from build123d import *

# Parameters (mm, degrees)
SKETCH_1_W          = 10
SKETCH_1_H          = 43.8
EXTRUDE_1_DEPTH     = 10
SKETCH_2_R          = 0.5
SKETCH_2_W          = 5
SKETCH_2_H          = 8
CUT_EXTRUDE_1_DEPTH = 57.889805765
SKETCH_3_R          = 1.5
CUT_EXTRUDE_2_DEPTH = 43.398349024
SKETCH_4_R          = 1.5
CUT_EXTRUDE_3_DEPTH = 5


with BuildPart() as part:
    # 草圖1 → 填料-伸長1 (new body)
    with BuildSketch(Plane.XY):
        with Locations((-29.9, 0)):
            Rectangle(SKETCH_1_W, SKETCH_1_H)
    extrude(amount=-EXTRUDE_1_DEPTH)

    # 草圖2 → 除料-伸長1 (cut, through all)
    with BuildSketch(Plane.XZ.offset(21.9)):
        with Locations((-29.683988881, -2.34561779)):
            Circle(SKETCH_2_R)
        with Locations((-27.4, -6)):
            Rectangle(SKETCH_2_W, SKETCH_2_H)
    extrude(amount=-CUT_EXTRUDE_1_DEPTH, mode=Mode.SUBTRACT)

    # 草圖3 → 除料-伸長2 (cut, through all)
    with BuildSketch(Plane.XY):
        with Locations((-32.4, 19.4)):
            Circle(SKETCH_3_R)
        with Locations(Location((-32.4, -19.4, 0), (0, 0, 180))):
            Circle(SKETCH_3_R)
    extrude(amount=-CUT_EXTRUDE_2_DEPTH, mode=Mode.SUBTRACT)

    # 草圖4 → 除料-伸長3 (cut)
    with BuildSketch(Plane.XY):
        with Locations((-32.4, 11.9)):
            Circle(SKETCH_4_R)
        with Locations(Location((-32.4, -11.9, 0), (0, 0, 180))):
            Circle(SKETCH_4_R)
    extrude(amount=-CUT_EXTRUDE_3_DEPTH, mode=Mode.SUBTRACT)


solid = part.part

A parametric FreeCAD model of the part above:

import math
import FreeCAD as App
import Part
import Sketcher

V = App.Vector

doc = App.newDocument("Part")
body = doc.addObject("PartDesign::Body", "Body")

# Sketch on XY plane
sketch1 = body.newObject("Sketcher::SketchObject", "Sketch")
sketch1.AttachmentSupport = (doc.getObject("XY_Plane"), [""])
sketch1.MapMode = "FlatFace"
sketch1.addGeometry(Part.LineSegment(V(-34.9, 21.9, 0), V(-34.9, -21.9, 0)), False)
sketch1.addGeometry(Part.LineSegment(V(-34.9, -21.9, 0), V(-24.9, -21.9, 0)), False)
sketch1.addGeometry(Part.LineSegment(V(-24.9, -21.9, 0), V(-24.9, 21.9, 0)), False)
sketch1.addGeometry(Part.LineSegment(V(-24.9, 21.9, 0), V(-34.9, 21.9, 0)), False)
sketch1.addConstraint(Sketcher.Constraint("Coincident", 0, 2, 1, 1))
sketch1.addConstraint(Sketcher.Constraint("Coincident", 1, 2, 2, 1))
sketch1.addConstraint(Sketcher.Constraint("Coincident", 2, 2, 3, 1))
sketch1.addConstraint(Sketcher.Constraint("Coincident", 3, 2, 0, 1))
sketch1.addConstraint(Sketcher.Constraint("Vertical", 0))
sketch1.addConstraint(Sketcher.Constraint("Horizontal", 1))
sketch1.addConstraint(Sketcher.Constraint("Vertical", 2))
sketch1.addConstraint(Sketcher.Constraint("Horizontal", 3))
sketch1.addConstraint(Sketcher.Constraint("DistanceX", 1, 1, 1, 2, 10.0))
sketch1.addConstraint(Sketcher.Constraint("DistanceY", 0, 2, 0, 1, 43.8))
sketch1.addConstraint(Sketcher.Constraint("DistanceX", 0, 2, -1, 1, 34.9))
sketch1.addConstraint(Sketcher.Constraint("DistanceY", 0, 2, -1, 1, 21.9))
pad1 = body.newObject("PartDesign::Pad", "Pad")
pad1.Profile = sketch1
pad1.Length = 10
pad1.Reversed = True

# Sketch on XZ plane
sketch2 = body.newObject("Sketcher::SketchObject", "Sketch001")
sketch2.AttachmentSupport = (doc.getObject("XZ_Plane"), [""])
sketch2.MapMode = "FlatFace"
sketch2.AttachmentOffset = App.Placement(V(0, 0, 21.9), App.Rotation())
sketch2.addGeometry(Part.LineSegment(V(-29.9, -2.796549, 0), V(-29.9, -10, 0)), False)
sketch2.addGeometry(Part.LineSegment(V(-29.9, -10, 0), V(-24.9, -10, 0)), False)
sketch2.addGeometry(Part.LineSegment(V(-24.9, -10, 0), V(-24.9, -2, 0)), False)
sketch2.addGeometry(Part.LineSegment(V(-24.9, -2, 0), V(-29.322674, -2, 0)), False)
sketch2.addGeometry(Part.ArcOfCircle(Part.Circle(V(-29.683989, -2.345618, 0), V(0, 0, 1), 0.5), math.radians(43.727995), math.radians(244.404035)), False)
sketch2.addConstraint(Sketcher.Constraint("Coincident", 0, 2, 1, 1))
sketch2.addConstraint(Sketcher.Constraint("Coincident", 1, 2, 2, 1))
sketch2.addConstraint(Sketcher.Constraint("Coincident", 2, 2, 3, 1))
sketch2.addConstraint(Sketcher.Constraint("Coincident", 3, 2, 4, 1))
sketch2.addConstraint(Sketcher.Constraint("Coincident", 4, 2, 0, 1))
sketch2.addConstraint(Sketcher.Constraint("Vertical", 0))
sketch2.addConstraint(Sketcher.Constraint("Horizontal", 1))
sketch2.addConstraint(Sketcher.Constraint("Vertical", 2))
sketch2.addConstraint(Sketcher.Constraint("Horizontal", 3))
sketch2.addConstraint(Sketcher.Constraint("Radius", 4, 0.5))
sketch2.addConstraint(Sketcher.Constraint("DistanceX", 1, 1, 1, 2, 5.0))
sketch2.addConstraint(Sketcher.Constraint("DistanceY", 2, 1, 2, 2, 8.0))
sketch2.addConstraint(Sketcher.Constraint("DistanceY", 0, 2, -1, 1, 10.0))
sketch2.addConstraint(Sketcher.Constraint("DistanceX", 0, 2, -1, 1, 29.9))
sketch2.addConstraint(Sketcher.Constraint("DistanceY", 0, 2, 0, 1, 7.203451))
sketch2.addConstraint(Sketcher.Constraint("DistanceX", 3, 2, 3, 1, 4.422674))
pocket1 = body.newObject("PartDesign::Pocket", "Pocket")
pocket1.Profile = sketch2
pocket1.Type = "ThroughAll"

# Sketch on XY plane
sketch3 = body.newObject("Sketcher::SketchObject", "Sketch002")
sketch3.AttachmentSupport = (doc.getObject("XY_Plane"), [""])
sketch3.MapMode = "FlatFace"
sketch3.addGeometry(Part.Circle(V(-32.4, 19.4, 0), V(0, 0, 1), 1.5), False)
sketch3.addGeometry(Part.Circle(V(-32.4, -19.4, 0), V(0, 0, 1), 1.5), False)
sketch3.addConstraint(Sketcher.Constraint("Equal", 0, 1))
sketch3.addConstraint(Sketcher.Constraint("Symmetric", 0, 3, 1, 3, -1))
sketch3.addConstraint(Sketcher.Constraint("Diameter", 0, 3.0))
sketch3.addConstraint(Sketcher.Constraint("DistanceX", 0, 3, -1, 1, 32.4))
sketch3.addConstraint(Sketcher.Constraint("DistanceY", -1, 1, 0, 3, 19.4))
pocket2 = body.newObject("PartDesign::Pocket", "Pocket001")
pocket2.Profile = sketch3
pocket2.Type = "ThroughAll"

# Sketch on XY plane
sketch4 = body.newObject("Sketcher::SketchObject", "Sketch003")
sketch4.AttachmentSupport = (doc.getObject("XY_Plane"), [""])
sketch4.MapMode = "FlatFace"
sketch4.addGeometry(Part.Circle(V(-32.4, 11.9, 0), V(0, 0, 1), 1.5), False)
sketch4.addGeometry(Part.Circle(V(-32.4, -11.9, 0), V(0, 0, 1), 1.5), False)
sketch4.addConstraint(Sketcher.Constraint("Equal", 0, 1))
sketch4.addConstraint(Sketcher.Constraint("Symmetric", 0, 3, 1, 3, -1))
sketch4.addConstraint(Sketcher.Constraint("Diameter", 0, 3.0))
sketch4.addConstraint(Sketcher.Constraint("DistanceX", 0, 3, -1, 1, 32.4))
sketch4.addConstraint(Sketcher.Constraint("DistanceY", -1, 1, 0, 3, 11.9))
pocket3 = body.newObject("PartDesign::Pocket", "Pocket002")
pocket3.Profile = sketch4
pocket3.Length = 5

doc.recompute()
